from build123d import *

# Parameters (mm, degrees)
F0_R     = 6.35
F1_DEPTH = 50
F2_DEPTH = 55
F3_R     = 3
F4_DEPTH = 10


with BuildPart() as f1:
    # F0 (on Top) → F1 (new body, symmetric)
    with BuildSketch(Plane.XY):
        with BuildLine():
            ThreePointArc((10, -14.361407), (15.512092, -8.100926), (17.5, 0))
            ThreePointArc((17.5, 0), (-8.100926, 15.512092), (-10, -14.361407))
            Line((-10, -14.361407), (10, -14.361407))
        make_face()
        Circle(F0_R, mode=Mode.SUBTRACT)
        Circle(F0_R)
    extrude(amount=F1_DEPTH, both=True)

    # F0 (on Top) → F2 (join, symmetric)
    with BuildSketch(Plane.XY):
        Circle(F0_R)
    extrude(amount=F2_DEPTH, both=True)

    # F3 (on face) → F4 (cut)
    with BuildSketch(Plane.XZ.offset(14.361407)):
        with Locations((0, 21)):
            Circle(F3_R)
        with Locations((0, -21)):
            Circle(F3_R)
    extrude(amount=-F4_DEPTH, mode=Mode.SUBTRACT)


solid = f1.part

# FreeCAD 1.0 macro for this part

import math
import FreeCAD as App
import Part
import Sketcher
from FreeCAD import Vector
Q = App.Units.Quantity

doc = App.newDocument("Part")
params = doc.addObject("Spreadsheet::Sheet", "Params")
for row, (alias, value) in enumerate([
    ("sketch1_radius", "17.500001 mm"),
    ("sketch1_width", "20 mm"),
    ("pad1_length", "100 mm"),
    ("sketch2_diameter", "12.7 mm"),
    ("pad2_length", "110 mm"),
    ("sketch3_diameter", "6 mm"),
    ("pocket1_length", "10 mm"),
], start=1):
    params.set(f"A{row}", alias)
    params.set(f"B{row}", "=" + value)
    params.setAlias(f"B{row}", alias)

body = doc.addObject("PartDesign::Body", "Body")

sketch1 = doc.addObject("Sketcher::SketchObject", "Sketch")
body.addObject(sketch1)
sketch1.AttachmentSupport = (doc.XY_Plane, [""])
sketch1.MapMode = "FlatFace"
sketch1.addGeometry([
    Part.ArcOfCircle(Part.Circle(Vector(-0.000001, 0, 0), Vector(0, 0, 1), 17.500001), math.radians(-55.150093), math.radians(-0.000001)),
    Part.ArcOfCircle(Part.Circle(Vector(0, 0, 0), Vector(0, 0, 1), 17.5), math.radians(0.000001), math.radians(235.150096)),
    Part.LineSegment(Vector(-10, -14.361407, 0), Vector(10, -14.361407, 0)),
], False)
sketch1.addConstraint([
    Sketcher.Constraint("Tangent", 0, 2, 1, 1),
    Sketcher.Constraint("Coincident", 1, 2, 2, 1),
    Sketcher.Constraint("Coincident", 2, 2, 0, 1),
    Sketcher.Constraint("Horizontal", 2),
    Sketcher.Constraint("Coincident", 0, 3, -1, 1),
    Sketcher.Constraint("Equal", 0, 1),
    Sketcher.Constraint("PointOnObject", 0, 2, -1),
    Sketcher.Constraint("Radius", 0, Q("17.500001 mm")),
    Sketcher.Constraint("DistanceX", 2, 1, 2, 2, Q("20 mm")),
])
sketch1.setExpression("Constraints[7]", "Params.sketch1_radius")
sketch1.setExpression("Constraints[8]", "Params.sketch1_width")
pad1 = doc.addObject("PartDesign::Pad", "Pad")
body.addObject(pad1)
pad1.Profile = sketch1
pad1.setExpression("Length", "Params.pad1_length")
pad1.Midplane = True

sketch2 = doc.addObject("Sketcher::SketchObject", "Sketch001")
body.addObject(sketch2)
sketch2.AttachmentSupport = (doc.XY_Plane, [""])
sketch2.MapMode = "FlatFace"
sketch2.addGeometry(Part.Circle(Vector(0, 0, 0), Vector(0, 0, 1), 6.35), False)
sketch2.addConstraint([
    Sketcher.Constraint("Coincident", 0, 3, -1, 1),
    Sketcher.Constraint("Diameter", 0, Q("12.7 mm")),
])
sketch2.setExpression("Constraints[1]", "Params.sketch2_diameter")
pad2 = doc.addObject("PartDesign::Pad", "Pad001")
body.addObject(pad2)
pad2.Profile = sketch2
pad2.setExpression("Length", "Params.pad2_length")
pad2.Midplane = True

sketch3 = doc.addObject("Sketcher::SketchObject", "Sketch002")
body.addObject(sketch3)
sketch3.AttachmentSupport = (doc.XZ_Plane, [""])
sketch3.MapMode = "FlatFace"
sketch3.AttachmentOffset = App.Placement(Vector(0, 0, 14.361407), App.Rotation())
sketch3.addGeometry([
    Part.Circle(Vector(0, 21, 0), Vector(0, 0, 1), 3),
    Part.Circle(Vector(0, -21, 0), Vector(0, 0, 1), 3),
], False)
sketch3.addConstraint([
    Sketcher.Constraint("Equal", 0, 1),
    Sketcher.Constraint("Symmetric", 0, 3, 1, 3, -1, 1),
    Sketcher.Constraint("PointOnObject", 0, 3, -2),
    Sketcher.Constraint("Diameter", 0, Q("6 mm")),
    Sketcher.Constraint("DistanceY", -1, 1, 0, 3, Q("21 mm")),
])
sketch3.setExpression("Constraints[3]", "Params.sketch3_diameter")
pocket1 = doc.addObject("PartDesign::Pocket", "Pocket")
body.addObject(pocket1)
pocket1.Profile = sketch3
pocket1.setExpression("Length", "Params.pocket1_length")

doc.recompute()
